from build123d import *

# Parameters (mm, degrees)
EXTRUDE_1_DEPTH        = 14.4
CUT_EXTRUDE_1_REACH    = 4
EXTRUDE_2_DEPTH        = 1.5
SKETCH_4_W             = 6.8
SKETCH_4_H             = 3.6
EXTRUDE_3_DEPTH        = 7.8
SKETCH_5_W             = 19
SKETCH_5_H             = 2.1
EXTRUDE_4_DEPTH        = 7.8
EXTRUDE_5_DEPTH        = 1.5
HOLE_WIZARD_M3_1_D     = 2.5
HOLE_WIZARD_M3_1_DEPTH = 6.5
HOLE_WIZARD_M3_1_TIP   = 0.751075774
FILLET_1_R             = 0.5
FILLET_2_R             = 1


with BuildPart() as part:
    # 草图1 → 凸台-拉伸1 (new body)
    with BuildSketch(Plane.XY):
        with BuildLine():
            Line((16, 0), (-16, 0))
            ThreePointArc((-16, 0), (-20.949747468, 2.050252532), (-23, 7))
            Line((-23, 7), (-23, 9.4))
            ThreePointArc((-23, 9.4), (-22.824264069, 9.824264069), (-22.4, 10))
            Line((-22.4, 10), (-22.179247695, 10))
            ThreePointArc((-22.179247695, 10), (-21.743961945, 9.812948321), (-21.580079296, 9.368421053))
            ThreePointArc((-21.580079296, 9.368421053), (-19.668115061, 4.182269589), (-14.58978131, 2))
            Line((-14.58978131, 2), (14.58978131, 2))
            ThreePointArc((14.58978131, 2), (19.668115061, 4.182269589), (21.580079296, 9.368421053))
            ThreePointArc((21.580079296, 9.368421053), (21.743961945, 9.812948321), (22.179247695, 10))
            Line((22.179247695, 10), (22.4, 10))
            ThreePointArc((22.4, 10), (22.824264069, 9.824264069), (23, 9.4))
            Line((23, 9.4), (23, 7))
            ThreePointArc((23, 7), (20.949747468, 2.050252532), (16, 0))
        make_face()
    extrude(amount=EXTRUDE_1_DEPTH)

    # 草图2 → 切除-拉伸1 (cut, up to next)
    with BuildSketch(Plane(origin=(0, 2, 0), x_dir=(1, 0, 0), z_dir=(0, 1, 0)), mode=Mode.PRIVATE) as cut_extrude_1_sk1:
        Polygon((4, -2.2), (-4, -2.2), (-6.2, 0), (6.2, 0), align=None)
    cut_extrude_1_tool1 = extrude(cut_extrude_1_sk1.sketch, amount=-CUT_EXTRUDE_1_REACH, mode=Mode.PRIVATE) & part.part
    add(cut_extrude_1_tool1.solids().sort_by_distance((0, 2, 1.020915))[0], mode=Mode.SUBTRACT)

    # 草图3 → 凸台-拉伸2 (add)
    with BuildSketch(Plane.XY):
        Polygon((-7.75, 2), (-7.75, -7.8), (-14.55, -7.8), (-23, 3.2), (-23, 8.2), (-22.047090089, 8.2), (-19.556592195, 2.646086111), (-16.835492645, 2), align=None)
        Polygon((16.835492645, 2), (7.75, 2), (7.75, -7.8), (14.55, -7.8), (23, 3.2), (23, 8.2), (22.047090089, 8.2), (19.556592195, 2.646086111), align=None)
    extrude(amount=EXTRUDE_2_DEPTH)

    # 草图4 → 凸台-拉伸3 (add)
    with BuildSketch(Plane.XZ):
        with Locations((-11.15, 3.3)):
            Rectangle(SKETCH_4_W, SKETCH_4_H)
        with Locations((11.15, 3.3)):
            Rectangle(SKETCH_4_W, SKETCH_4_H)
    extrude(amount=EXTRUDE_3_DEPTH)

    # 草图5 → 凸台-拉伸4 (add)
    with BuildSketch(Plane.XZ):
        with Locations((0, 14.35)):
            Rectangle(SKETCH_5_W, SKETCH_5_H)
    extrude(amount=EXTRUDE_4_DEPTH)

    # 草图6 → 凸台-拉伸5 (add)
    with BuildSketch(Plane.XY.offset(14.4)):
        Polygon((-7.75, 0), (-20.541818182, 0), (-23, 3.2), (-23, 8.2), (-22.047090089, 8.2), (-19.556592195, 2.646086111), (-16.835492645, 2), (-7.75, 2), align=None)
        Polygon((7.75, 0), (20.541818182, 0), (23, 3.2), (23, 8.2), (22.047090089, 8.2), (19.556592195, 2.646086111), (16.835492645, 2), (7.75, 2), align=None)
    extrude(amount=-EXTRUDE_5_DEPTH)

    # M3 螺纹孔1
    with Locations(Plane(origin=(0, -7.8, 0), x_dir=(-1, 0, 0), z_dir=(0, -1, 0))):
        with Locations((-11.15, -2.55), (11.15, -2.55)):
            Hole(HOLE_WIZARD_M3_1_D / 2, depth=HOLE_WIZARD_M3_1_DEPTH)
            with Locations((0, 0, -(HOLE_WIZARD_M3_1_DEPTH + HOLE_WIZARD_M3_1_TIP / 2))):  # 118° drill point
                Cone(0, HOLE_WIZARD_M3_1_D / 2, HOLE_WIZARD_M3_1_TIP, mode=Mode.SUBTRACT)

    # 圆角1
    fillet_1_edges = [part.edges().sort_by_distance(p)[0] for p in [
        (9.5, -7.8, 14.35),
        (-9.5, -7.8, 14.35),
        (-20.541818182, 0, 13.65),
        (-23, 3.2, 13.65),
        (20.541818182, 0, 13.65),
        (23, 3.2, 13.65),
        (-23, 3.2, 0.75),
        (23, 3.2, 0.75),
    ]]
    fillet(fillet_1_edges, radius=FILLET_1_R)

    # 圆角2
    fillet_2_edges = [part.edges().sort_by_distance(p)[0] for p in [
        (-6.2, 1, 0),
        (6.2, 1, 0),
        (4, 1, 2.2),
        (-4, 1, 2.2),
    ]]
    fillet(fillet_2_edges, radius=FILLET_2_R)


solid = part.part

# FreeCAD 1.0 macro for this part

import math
import FreeCAD as App
import Part
import Sketcher
from FreeCAD import Vector


def edges_at(feature, points):
    """Names of the edges that pass closest to the given points."""
    edges = feature.Shape.Edges
    near = lambda p: min(range(len(edges)), key=lambda i: edges[i].distToShape(Part.Vertex(*p))[0])
    return sorted({f"Edge{near(p) + 1}" for p in points})

doc = App.newDocument("Part")
body = doc.addObject("PartDesign::Body", "Body")

# Sketch on XY plane
sketch1 = body.newObject("Sketcher::SketchObject", "Sketch")
sketch1.AttachmentSupport = (doc.getObject("XY_Plane"), [""])
sketch1.MapMode = "FlatFace"
sketch1.addGeometry([
    Part.LineSegment(Vector(-16, 0, 0), Vector(16, 0, 0)),  # 0
    Part.ArcOfCircle(Part.Circle(Vector(16, 7, 0), Vector(0, 0, 1), 7), math.radians(-90), math.radians(0)),  # 1
    Part.LineSegment(Vector(23, 7, 0), Vector(23, 9.4, 0)),  # 2
    Part.ArcOfCircle(Part.Circle(Vector(22.4, 9.4, 0), Vector(0, 0, 1), 0.6), math.radians(0), math.radians(90)),  # 3
    Part.LineSegment(Vector(22.4, 10, 0), Vector(22.18, 10, 0)),  # 4
    Part.ArcOfCircle(Part.Circle(Vector(22.18, 9.4, 0), Vector(0, 0, 1), 0.6), math.radians(90), math.radians(183)),  # 5
    Part.ArcOfCircle(Part.Circle(Vector(14.59, 9, 0), Vector(0, 0, 1), 7), math.radians(-90), math.radians(3)),  # 6
    Part.LineSegment(Vector(14.59, 2, 0), Vector(-14.59, 2, 0)),  # 7
    Part.ArcOfCircle(Part.Circle(Vector(-14.59, 9, 0), Vector(0, 0, 1), 7), math.radians(177), math.radians(270)),  # 8
    Part.ArcOfCircle(Part.Circle(Vector(-22.18, 9.4, 0), Vector(0, 0, 1), 0.6), math.radians(-3), math.radians(90)),  # 9
    Part.LineSegment(Vector(-22.18, 10, 0), Vector(-22.4, 10, 0)),  # 10
    Part.ArcOfCircle(Part.Circle(Vector(-22.4, 9.4, 0), Vector(0, 0, 1), 0.6), math.radians(90), math.radians(180)),  # 11
    Part.LineSegment(Vector(-23, 9.4, 0), Vector(-23, 7, 0)),  # 12
    Part.ArcOfCircle(Part.Circle(Vector(-16, 7, 0), Vector(0, 0, 1), 7), math.radians(-180), math.radians(-90)),  # 13
], False)
sketch1.addConstraint([
    Sketcher.Constraint("Tangent", 0, 2, 1, 1),
    Sketcher.Constraint("Tangent", 1, 2, 2, 1),
    Sketcher.Constraint("Tangent", 2, 2, 3, 1),
    Sketcher.Constraint("Tangent", 3, 2, 4, 1),
    Sketcher.Constraint("Tangent", 4, 2, 5, 1),
    Sketcher.Constraint("Tangent", 5, 2, 6, 2),
    Sketcher.Constraint("Tangent", 6, 1, 7, 1),
    Sketcher.Constraint("Tangent", 7, 2, 8, 2),
    Sketcher.Constraint("Tangent", 8, 1, 9, 1),
    Sketcher.Constraint("Tangent", 9, 2, 10, 1),
    Sketcher.Constraint("Tangent", 10, 2, 11, 1),
    Sketcher.Constraint("Tangent", 11, 2, 12, 1),
    Sketcher.Constraint("Tangent", 12, 2, 13, 1),
    Sketcher.Constraint("Tangent", 13, 2, 0, 1),
    Sketcher.Constraint("Horizontal", 0),
    Sketcher.Constraint("Vertical", 2),
    Sketcher.Constraint("Horizontal", 4),
    Sketcher.Constraint("Horizontal", 7),
    Sketcher.Constraint("Horizontal", 10),
    Sketcher.Constraint("Vertical", 12),
    Sketcher.Constraint("Equal", 3, 5),
    Sketcher.Constraint("Equal", 1, 6),
    Sketcher.Constraint("Equal", 6, 8),
    Sketcher.Constraint("Equal", 5, 9),
    Sketcher.Constraint("Equal", 9, 11),
    Sketcher.Constraint("Equal", 8, 13),
    Sketcher.Constraint("Symmetric", 0, 2, 13, 2, -1, 1),
    Sketcher.Constraint("Symmetric", 5, 3, 9, 3, -2),
    Sketcher.Constraint("Radius", 1, 7.0),
    Sketcher.Constraint("Radius", 3, 0.6),
    Sketcher.Constraint("DistanceX", 0, 1, 0, 2, 32.0),
    Sketcher.Constraint("DistanceY", 2, 1, 2, 2, 2.4),
    Sketcher.Constraint("DistanceY", -1, 1, 6, 3, 9.0),
    Sketcher.Constraint("DistanceX", 4, 2, 4, 1, 0.220752),
])
pad1 = body.newObject("PartDesign::Pad", "Pad")
pad1.Profile = sketch1
pad1.Length = 14.4

# Sketch on XZ plane
sketch2 = body.newObject("Sketcher::SketchObject", "Sketch001")
sketch2.AttachmentSupport = (doc.getObject("XZ_Plane"), [""])
sketch2.MapMode = "FlatFace"
sketch2.AttachmentOffset = App.Placement(Vector(0, 0, -2), App.Rotation())
sketch2.addGeometry([
    Part.LineSegment(Vector(-4, 2.2, 0), Vector(4, 2.2, 0)),
    Part.LineSegment(Vector(4, 2.2, 0), Vector(6.2, 0, 0)),
    Part.LineSegment(Vector(6.2, 0, 0), Vector(-6.2, 0, 0)),
    Part.LineSegment(Vector(-6.2, 0, 0), Vector(-4, 2.2, 0)),
], False)
sketch2.addConstraint([
    Sketcher.Constraint("Coincident", 0, 2, 1, 1),
    Sketcher.Constraint("Coincident", 1, 2, 2, 1),
    Sketcher.Constraint("Coincident", 2, 2, 3, 1),
    Sketcher.Constraint("Coincident", 3, 2, 0, 1),
    Sketcher.Constraint("Horizontal", 0),
    Sketcher.Constraint("Horizontal", 2),
    Sketcher.Constraint("Symmetric", 1, 2, 2, 2, -1, 1),
    Sketcher.Constraint("Perpendicular", 1, 3),
    Sketcher.Constraint("Equal", 1, 3),
    Sketcher.Constraint("DistanceX", 0, 1, 0, 2, 8.0),
    Sketcher.Constraint("DistanceX", 2, 2, 2, 1, 12.4),
])
pocket1 = body.newObject("PartDesign::Pocket", "Pocket")
pocket1.Profile = sketch2
pocket1.Type = "UpToFirst"
pocket1.Reversed = True

# Sketch on XY plane
sketch3 = body.newObject("Sketcher::SketchObject", "Sketch002")
sketch3.AttachmentSupport = (doc.getObject("XY_Plane"), [""])
sketch3.MapMode = "FlatFace"
sketch3.addGeometry([
    Part.LineSegment(Vector(-7.8, -7.8, 0), Vector(-7.8, 2, 0)),  # 0
    Part.LineSegment(Vector(-7.8, 2, 0), Vector(-16.8, 2, 0)),  # 1
    Part.LineSegment(Vector(-16.8, 2, 0), Vector(-19.6, 2.6, 0)),  # 2
    Part.LineSegment(Vector(-19.6, 2.6, 0), Vector(-22, 8.2, 0)),  # 3
    Part.LineSegment(Vector(-22, 8.2, 0), Vector(-23, 8.2, 0)),  # 4
    Part.LineSegment(Vector(-23, 8.2, 0), Vector(-23, 3.2, 0)),  # 5
    Part.LineSegment(Vector(-23, 3.2, 0), Vector(-14.6, -7.8, 0)),  # 6
    Part.LineSegment(Vector(-14.6, -7.8, 0), Vector(-7.8, -7.8, 0)),  # 7
    Part.LineSegment(Vector(16.8, 2, 0), Vector(7.8, 2, 0)),  # 8
    Part.LineSegment(Vector(7.8, 2, 0), Vector(7.8, -7.8, 0)),  # 9
    Part.LineSegment(Vector(7.8, -7.8, 0), Vector(14.6, -7.8, 0)),  # 10
    Part.LineSegment(Vector(14.6, -7.8, 0), Vector(23, 3.2, 0)),  # 11
    Part.LineSegment(Vector(23, 3.2, 0), Vector(23, 8.2, 0)),  # 12
    Part.LineSegment(Vector(23, 8.2, 0), Vector(22, 8.2, 0)),  # 13
    Part.LineSegment(Vector(22, 8.2, 0), Vector(19.6, 2.6, 0)),  # 14
    Part.LineSegment(Vector(19.6, 2.6, 0), Vector(16.8, 2, 0)),  # 15
], False)
sketch3.addConstraint([
    Sketcher.Constraint("Coincident", 0, 2, 1, 1),
    Sketcher.Constraint("Coincident", 1, 2, 2, 1),
    Sketcher.Constraint("Coincident", 2, 2, 3, 1),
    Sketcher.Constraint("Coincident", 3, 2, 4, 1),
    Sketcher.Constraint("Coincident", 4, 2, 5, 1),
    Sketcher.Constraint("Coincident", 5, 2, 6, 1),
    Sketcher.Constraint("Coincident", 6, 2, 7, 1),
    Sketcher.Constraint("Coincident", 7, 2, 0, 1),
    Sketcher.Constraint("Coincident", 8, 2, 9, 1),
    Sketcher.Constraint("Coincident", 9, 2, 10, 1),
    Sketcher.Constraint("Coincident", 10, 2, 11, 1),
    Sketcher.Constraint("Coincident", 11, 2, 12, 1),
    Sketcher.Constraint("Coincident", 12, 2, 13, 1),
    Sketcher.Constraint("Coincident", 13, 2, 14, 1),
    Sketcher.Constraint("Coincident", 14, 2, 15, 1),
    Sketcher.Constraint("Coincident", 15, 2, 8, 1),
    Sketcher.Constraint("Vertical", 0),
    Sketcher.Constraint("Horizontal", 1),
    Sketcher.Constraint("Horizontal", 4),
    Sketcher.Constraint("Vertical", 5),
    Sketcher.Constraint("Horizontal", 7),
    Sketcher.Constraint("Horizontal", 8),
    Sketcher.Constraint("Vertical", 9),
    Sketcher.Constraint("Horizontal", 10),
    Sketcher.Constraint("Vertical", 12),
    Sketcher.Constraint("Horizontal", 13),
    Sketcher.Constraint("Symmetric", 0, 2, 8, 2, -2),
    Sketcher.Constraint("Symmetric", 6, 2, 10, 2, -2),
    Sketcher.Constraint("Symmetric", 5, 2, 11, 2, -2),
    Sketcher.Constraint("Symmetric", 3, 2, 13, 2, -2),
    Sketcher.Constraint("Symmetric", 2, 2, 14, 2, -2),
    Sketcher.Constraint("Equal", 1, 8),
    Sketcher.Constraint("DistanceY", 5, 2, 5, 1, 5.0),
    Sketcher.Constraint("DistanceX", 7, 1, 7, 2, 6.8),
    Sketcher.Constraint("DistanceY", 0, 1, 0, 2, 9.8),
    Sketcher.Constraint("DistanceY", -1, 1, 0, 2, 2.0),
    Sketcher.Constraint("DistanceX", 4, 2, -1, 1, 23.0),
    Sketcher.Constraint("DistanceY", 6, 2, 5, 2, 11.0),
    Sketcher.Constraint("DistanceX", 0, 2, 8, 2, 15.5),
    Sketcher.Constraint("DistanceX", 4, 2, 4, 1, 0.95291),
    Sketcher.Constraint("DistanceX", 2, 2, 1, 2, 2.7211),
    Sketcher.Constraint("Distance", 2, 2.79675),
    Sketcher.Constraint("Distance", 3, 6.086751),
])
pad2 = body.newObject("PartDesign::Pad", "Pad001")
pad2.Profile = sketch3
pad2.Length = 1.5

# Sketch on XZ plane
sketch4 = body.newObject("Sketcher::SketchObject", "Sketch003")
sketch4.AttachmentSupport = (doc.getObject("XZ_Plane"), [""])
sketch4.MapMode = "FlatFace"
sketch4.addGeometry([
    Part.LineSegment(Vector(-14.6, 5.1, 0), Vector(-14.6, 1.5, 0)),  # 0
    Part.LineSegment(Vector(-14.6, 1.5, 0), Vector(-7.8, 1.5, 0)),  # 1
    Part.LineSegment(Vector(-7.8, 1.5, 0), Vector(-7.8, 5.1, 0)),  # 2
    Part.LineSegment(Vector(-7.8, 5.1, 0), Vector(-14.6, 5.1, 0)),  # 3
    Part.LineSegment(Vector(7.8, 5.1, 0), Vector(7.8, 1.5, 0)),  # 4
    Part.LineSegment(Vector(7.8, 1.5, 0), Vector(14.6, 1.5, 0)),  # 5
    Part.LineSegment(Vector(14.6, 1.5, 0), Vector(14.6, 5.1, 0)),  # 6
    Part.LineSegment(Vector(14.6, 5.1, 0), Vector(7.8, 5.1, 0)),  # 7
], False)
sketch4.addConstraint([
    Sketcher.Constraint("Coincident", 0, 2, 1, 1),
    Sketcher.Constraint("Coincident", 1, 2, 2, 1),
    Sketcher.Constraint("Coincident", 2, 2, 3, 1),
    Sketcher.Constraint("Coincident", 3, 2, 0, 1),
    Sketcher.Constraint("Coincident", 4, 2, 5, 1),
    Sketcher.Constraint("Coincident", 5, 2, 6, 1),
    Sketcher.Constraint("Coincident", 6, 2, 7, 1),
    Sketcher.Constraint("Coincident", 7, 2, 4, 1),
    Sketcher.Constraint("Vertical", 0),
    Sketcher.Constraint("Horizontal", 1),
    Sketcher.Constraint("Vertical", 2),
    Sketcher.Constraint("Horizontal", 3),
    Sketcher.Constraint("Vertical", 4),
    Sketcher.Constraint("Horizontal", 5),
    Sketcher.Constraint("Vertical", 6),
    Sketcher.Constraint("Horizontal", 7),
    Sketcher.Constraint("Symmetric", 1, 2, 4, 2, -2),
    Sketcher.Constraint("Symmetric", 3, 2, 6, 2, -2),
    Sketcher.Constraint("DistanceX", 1, 1, 1, 2, 6.8),
    Sketcher.Constraint("DistanceY", 0, 2, 0, 1, 3.6),
    Sketcher.Constraint("DistanceY", -1, 1, 0, 2, 1.5),
    Sketcher.Constraint("DistanceX", 1, 2, 4, 2, 15.5),
])
pad3 = body.newObject("PartDesign::Pad", "Pad002")
pad3.Profile = sketch4
pad3.Length = 7.8

# Sketch on XZ plane
sketch5 = body.newObject("Sketcher::SketchObject", "Sketch004")
sketch5.AttachmentSupport = (doc.getObject("XZ_Plane"), [""])
sketch5.MapMode = "FlatFace"
sketch5.addGeometry([
    Part.LineSegment(Vector(-9.5, 15.4, 0), Vector(-9.5, 13.3, 0)),
    Part.LineSegment(Vector(-9.5, 13.3, 0), Vector(9.5, 13.3, 0)),
    Part.LineSegment(Vector(9.5, 13.3, 0), Vector(9.5, 15.4, 0)),
    Part.LineSegment(Vector(9.5, 15.4, 0), Vector(-9.5, 15.4, 0)),
], False)
sketch5.addConstraint([
    Sketcher.Constraint("Coincident", 0, 2, 1, 1),
    Sketcher.Constraint("Coincident", 1, 2, 2, 1),
    Sketcher.Constraint("Coincident", 2, 2, 3, 1),
    Sketcher.Constraint("Coincident", 3, 2, 0, 1),
    Sketcher.Constraint("Vertical", 0),
    Sketcher.Constraint("Horizontal", 1),
    Sketcher.Constraint("Vertical", 2),
    Sketcher.Constraint("Horizontal", 3),
    Sketcher.Constraint("DistanceX", 1, 1, 1, 2, 19.0),
    Sketcher.Constraint("DistanceY", 0, 2, 0, 1, 2.1),
    Sketcher.Constraint("DistanceX", 0, 2, -1, 1, 9.5),
    Sketcher.Constraint("DistanceY", -1, 1, 0, 2, 13.3),
])
pad4 = body.newObject("PartDesign::Pad", "Pad003")
pad4.Profile = sketch5
pad4.Length = 7.8

# Sketch on XY plane
sketch6 = body.newObject("Sketcher::SketchObject", "Sketch005")
sketch6.AttachmentSupport = (doc.getObject("XY_Plane"), [""])
sketch6.MapMode = "FlatFace"
sketch6.AttachmentOffset = App.Placement(Vector(0, 0, 14.4), App.Rotation())
sketch6.addGeometry([
    Part.LineSegment(Vector(-20.5, 0, 0), Vector(-7.8, 0, 0)),  # 0
    Part.LineSegment(Vector(-7.8, 0, 0), Vector(-7.8, 2, 0)),  # 1
    Part.LineSegment(Vector(-7.8, 2, 0), Vector(-16.8, 2, 0)),  # 2
    Part.LineSegment(Vector(-16.8, 2, 0), Vector(-19.6, 2.6, 0)),  # 3
    Part.LineSegment(Vector(-19.6, 2.6, 0), Vector(-22, 8.2, 0)),  # 4
    Part.LineSegment(Vector(-22, 8.2, 0), Vector(-23, 8.2, 0)),  # 5
    Part.LineSegment(Vector(-23, 8.2, 0), Vector(-23, 3.2, 0)),  # 6
    Part.LineSegment(Vector(-23, 3.2, 0), Vector(-20.5, 0, 0)),  # 7
    Part.LineSegment(Vector(7.8, 0, 0), Vector(20.5, 0, 0)),  # 8
    Part.LineSegment(Vector(20.5, 0, 0), Vector(23, 3.2, 0)),  # 9
    Part.LineSegment(Vector(23, 3.2, 0), Vector(23, 8.2, 0)),  # 10
    Part.LineSegment(Vector(23, 8.2, 0), Vector(22, 8.2, 0)),  # 11
    Part.LineSegment(Vector(22, 8.2, 0), Vector(19.6, 2.6, 0)),  # 12
    Part.LineSegment(Vector(19.6, 2.6, 0), Vector(16.8, 2, 0)),  # 13
    Part.LineSegment(Vector(16.8, 2, 0), Vector(7.8, 2, 0)),  # 14
    Part.LineSegment(Vector(7.8, 2, 0), Vector(7.8, 0, 0)),  # 15
], False)
sketch6.addConstraint([
    Sketcher.Constraint("Coincident", 0, 2, 1, 1),
    Sketcher.Constraint("Coincident", 1, 2, 2, 1),
    Sketcher.Constraint("Coincident", 2, 2, 3, 1),
    Sketcher.Constraint("Coincident", 3, 2, 4, 1),
    Sketcher.Constraint("Coincident", 4, 2, 5, 1),
    Sketcher.Constraint("Coincident", 5, 2, 6, 1),
    Sketcher.Constraint("Coincident", 6, 2, 7, 1),
    Sketcher.Constraint("Coincident", 7, 2, 0, 1),
    Sketcher.Constraint("Coincident", 8, 2, 9, 1),
    Sketcher.Constraint("Coincident", 9, 2, 10, 1),
    Sketcher.Constraint("Coincident", 10, 2, 11, 1),
    Sketcher.Constraint("Coincident", 11, 2, 12, 1),
    Sketcher.Constraint("Coincident", 12, 2, 13, 1),
    Sketcher.Constraint("Coincident", 13, 2, 14, 1),
    Sketcher.Constraint("Coincident", 14, 2, 15, 1),
    Sketcher.Constraint("Coincident", 15, 2, 8, 1),
    Sketcher.Constraint("Horizontal", 0),
    Sketcher.Constraint("Vertical", 1),
    Sketcher.Constraint("Horizontal", 2),
    Sketcher.Constraint("Horizontal", 5),
    Sketcher.Constraint("Vertical", 6),
    Sketcher.Constraint("Horizontal", 8),
    Sketcher.Constraint("Vertical", 10),
    Sketcher.Constraint("Horizontal", 11),
    Sketcher.Constraint("Horizontal", 14),
    Sketcher.Constraint("Vertical", 15),
    Sketcher.Constraint("Symmetric", 7, 2, 8, 2, -1, 1),
    Sketcher.Constraint("Symmetric", 6, 2, 9, 2, -2),
    Sketcher.Constraint("Symmetric", 4, 2, 11, 2, -2),
    Sketcher.Constraint("Symmetric", 3, 2, 12, 2, -2),
    Sketcher.Constraint("Symmetric", 2, 2, 13, 2, -2),
    Sketcher.Constraint("Symmetric", 0, 2, 15, 2, -2),
    Sketcher.Constraint("DistanceY", 1, 1, 1, 2, 2.0),
    Sketcher.Constraint("DistanceY", 6, 2, 6, 1, 5.0),
    Sketcher.Constraint("DistanceX", 5, 2, -1, 1, 23.0),
    Sketcher.Constraint("DistanceY", -1, 1, 4, 2, 8.2),
    Sketcher.Constraint("DistanceX", 1, 2, 14, 2, 15.5),
    Sketcher.Constraint("DistanceX", 0, 1, 0, 2, 12.791818),
    Sketcher.Constraint("DistanceX", 5, 2, 5, 1, 0.95291),
    Sketcher.Constraint("DistanceX", 3, 2, 2, 2, 2.7211),
    Sketcher.Constraint("Distance", 3, 2.79675),
    Sketcher.Constraint("Distance", 4, 6.086751),
])
pad5 = body.newObject("PartDesign::Pad", "Pad004")
pad5.Profile = sketch6
pad5.Length = 1.5
pad5.Reversed = True

# Sketch on XZ plane
sketch7 = body.newObject("Sketcher::SketchObject", "Sketch006")
sketch7.AttachmentSupport = (doc.getObject("XZ_Plane"), [""])
sketch7.MapMode = "FlatFace"
sketch7.AttachmentOffset = App.Placement(Vector(0, 0, 7.8), App.Rotation())
sketch7.addGeometry([
    Part.Circle(Vector(11.2, 2.5, 0), Vector(0, 0, 1), 1.2),
    Part.Circle(Vector(-11.2, 2.5, 0), Vector(0, 0, 1), 1.2),
], False)
sketch7.addConstraint([
    Sketcher.Constraint("Equal", 0, 1),
    Sketcher.Constraint("Symmetric", 0, 3, 1, 3, -2),
    Sketcher.Constraint("Diameter", 0, 2.5),
    Sketcher.Constraint("DistanceX", 1, 3, 0, 3, 22.3),
    Sketcher.Constraint("DistanceY", -1, 1, 0, 3, 2.55),
])
doc.recompute()
hole = body.newObject("PartDesign::Hole", "Hole")
hole.Profile = sketch7
hole.ThreadType = "None"
hole.Diameter = 2.5
hole.DepthType = "Dimension"
hole.Depth = 6.5
hole.DrillPoint = "Angled"
hole.DrillPointAngle = 118
doc.recompute()

fillet = body.newObject("PartDesign::Fillet", "Fillet")
fillet.Base = (hole, edges_at(hole, [
    (9.5, -7.8, 14.35),
    (-9.5, -7.8, 14.35),
    (-20.542, 0, 13.65),
    (-23, 3.2, 13.65),
    (20.542, 0, 13.65),
    (23, 3.2, 13.65),
    (-23, 3.2, 0.75),
    (23, 3.2, 0.75),
]))
fillet.Radius = 0.5
doc.recompute()

fillet2 = body.newObject("PartDesign::Fillet", "Fillet001")
fillet2.Base = (fillet, edges_at(fillet, [
    (-6.2, 1, 0),
    (6.2, 1, 0),
    (4, 1, 2.2),
    (-4, 1, 2.2),
]))
fillet2.Radius = 1

doc.recompute()
